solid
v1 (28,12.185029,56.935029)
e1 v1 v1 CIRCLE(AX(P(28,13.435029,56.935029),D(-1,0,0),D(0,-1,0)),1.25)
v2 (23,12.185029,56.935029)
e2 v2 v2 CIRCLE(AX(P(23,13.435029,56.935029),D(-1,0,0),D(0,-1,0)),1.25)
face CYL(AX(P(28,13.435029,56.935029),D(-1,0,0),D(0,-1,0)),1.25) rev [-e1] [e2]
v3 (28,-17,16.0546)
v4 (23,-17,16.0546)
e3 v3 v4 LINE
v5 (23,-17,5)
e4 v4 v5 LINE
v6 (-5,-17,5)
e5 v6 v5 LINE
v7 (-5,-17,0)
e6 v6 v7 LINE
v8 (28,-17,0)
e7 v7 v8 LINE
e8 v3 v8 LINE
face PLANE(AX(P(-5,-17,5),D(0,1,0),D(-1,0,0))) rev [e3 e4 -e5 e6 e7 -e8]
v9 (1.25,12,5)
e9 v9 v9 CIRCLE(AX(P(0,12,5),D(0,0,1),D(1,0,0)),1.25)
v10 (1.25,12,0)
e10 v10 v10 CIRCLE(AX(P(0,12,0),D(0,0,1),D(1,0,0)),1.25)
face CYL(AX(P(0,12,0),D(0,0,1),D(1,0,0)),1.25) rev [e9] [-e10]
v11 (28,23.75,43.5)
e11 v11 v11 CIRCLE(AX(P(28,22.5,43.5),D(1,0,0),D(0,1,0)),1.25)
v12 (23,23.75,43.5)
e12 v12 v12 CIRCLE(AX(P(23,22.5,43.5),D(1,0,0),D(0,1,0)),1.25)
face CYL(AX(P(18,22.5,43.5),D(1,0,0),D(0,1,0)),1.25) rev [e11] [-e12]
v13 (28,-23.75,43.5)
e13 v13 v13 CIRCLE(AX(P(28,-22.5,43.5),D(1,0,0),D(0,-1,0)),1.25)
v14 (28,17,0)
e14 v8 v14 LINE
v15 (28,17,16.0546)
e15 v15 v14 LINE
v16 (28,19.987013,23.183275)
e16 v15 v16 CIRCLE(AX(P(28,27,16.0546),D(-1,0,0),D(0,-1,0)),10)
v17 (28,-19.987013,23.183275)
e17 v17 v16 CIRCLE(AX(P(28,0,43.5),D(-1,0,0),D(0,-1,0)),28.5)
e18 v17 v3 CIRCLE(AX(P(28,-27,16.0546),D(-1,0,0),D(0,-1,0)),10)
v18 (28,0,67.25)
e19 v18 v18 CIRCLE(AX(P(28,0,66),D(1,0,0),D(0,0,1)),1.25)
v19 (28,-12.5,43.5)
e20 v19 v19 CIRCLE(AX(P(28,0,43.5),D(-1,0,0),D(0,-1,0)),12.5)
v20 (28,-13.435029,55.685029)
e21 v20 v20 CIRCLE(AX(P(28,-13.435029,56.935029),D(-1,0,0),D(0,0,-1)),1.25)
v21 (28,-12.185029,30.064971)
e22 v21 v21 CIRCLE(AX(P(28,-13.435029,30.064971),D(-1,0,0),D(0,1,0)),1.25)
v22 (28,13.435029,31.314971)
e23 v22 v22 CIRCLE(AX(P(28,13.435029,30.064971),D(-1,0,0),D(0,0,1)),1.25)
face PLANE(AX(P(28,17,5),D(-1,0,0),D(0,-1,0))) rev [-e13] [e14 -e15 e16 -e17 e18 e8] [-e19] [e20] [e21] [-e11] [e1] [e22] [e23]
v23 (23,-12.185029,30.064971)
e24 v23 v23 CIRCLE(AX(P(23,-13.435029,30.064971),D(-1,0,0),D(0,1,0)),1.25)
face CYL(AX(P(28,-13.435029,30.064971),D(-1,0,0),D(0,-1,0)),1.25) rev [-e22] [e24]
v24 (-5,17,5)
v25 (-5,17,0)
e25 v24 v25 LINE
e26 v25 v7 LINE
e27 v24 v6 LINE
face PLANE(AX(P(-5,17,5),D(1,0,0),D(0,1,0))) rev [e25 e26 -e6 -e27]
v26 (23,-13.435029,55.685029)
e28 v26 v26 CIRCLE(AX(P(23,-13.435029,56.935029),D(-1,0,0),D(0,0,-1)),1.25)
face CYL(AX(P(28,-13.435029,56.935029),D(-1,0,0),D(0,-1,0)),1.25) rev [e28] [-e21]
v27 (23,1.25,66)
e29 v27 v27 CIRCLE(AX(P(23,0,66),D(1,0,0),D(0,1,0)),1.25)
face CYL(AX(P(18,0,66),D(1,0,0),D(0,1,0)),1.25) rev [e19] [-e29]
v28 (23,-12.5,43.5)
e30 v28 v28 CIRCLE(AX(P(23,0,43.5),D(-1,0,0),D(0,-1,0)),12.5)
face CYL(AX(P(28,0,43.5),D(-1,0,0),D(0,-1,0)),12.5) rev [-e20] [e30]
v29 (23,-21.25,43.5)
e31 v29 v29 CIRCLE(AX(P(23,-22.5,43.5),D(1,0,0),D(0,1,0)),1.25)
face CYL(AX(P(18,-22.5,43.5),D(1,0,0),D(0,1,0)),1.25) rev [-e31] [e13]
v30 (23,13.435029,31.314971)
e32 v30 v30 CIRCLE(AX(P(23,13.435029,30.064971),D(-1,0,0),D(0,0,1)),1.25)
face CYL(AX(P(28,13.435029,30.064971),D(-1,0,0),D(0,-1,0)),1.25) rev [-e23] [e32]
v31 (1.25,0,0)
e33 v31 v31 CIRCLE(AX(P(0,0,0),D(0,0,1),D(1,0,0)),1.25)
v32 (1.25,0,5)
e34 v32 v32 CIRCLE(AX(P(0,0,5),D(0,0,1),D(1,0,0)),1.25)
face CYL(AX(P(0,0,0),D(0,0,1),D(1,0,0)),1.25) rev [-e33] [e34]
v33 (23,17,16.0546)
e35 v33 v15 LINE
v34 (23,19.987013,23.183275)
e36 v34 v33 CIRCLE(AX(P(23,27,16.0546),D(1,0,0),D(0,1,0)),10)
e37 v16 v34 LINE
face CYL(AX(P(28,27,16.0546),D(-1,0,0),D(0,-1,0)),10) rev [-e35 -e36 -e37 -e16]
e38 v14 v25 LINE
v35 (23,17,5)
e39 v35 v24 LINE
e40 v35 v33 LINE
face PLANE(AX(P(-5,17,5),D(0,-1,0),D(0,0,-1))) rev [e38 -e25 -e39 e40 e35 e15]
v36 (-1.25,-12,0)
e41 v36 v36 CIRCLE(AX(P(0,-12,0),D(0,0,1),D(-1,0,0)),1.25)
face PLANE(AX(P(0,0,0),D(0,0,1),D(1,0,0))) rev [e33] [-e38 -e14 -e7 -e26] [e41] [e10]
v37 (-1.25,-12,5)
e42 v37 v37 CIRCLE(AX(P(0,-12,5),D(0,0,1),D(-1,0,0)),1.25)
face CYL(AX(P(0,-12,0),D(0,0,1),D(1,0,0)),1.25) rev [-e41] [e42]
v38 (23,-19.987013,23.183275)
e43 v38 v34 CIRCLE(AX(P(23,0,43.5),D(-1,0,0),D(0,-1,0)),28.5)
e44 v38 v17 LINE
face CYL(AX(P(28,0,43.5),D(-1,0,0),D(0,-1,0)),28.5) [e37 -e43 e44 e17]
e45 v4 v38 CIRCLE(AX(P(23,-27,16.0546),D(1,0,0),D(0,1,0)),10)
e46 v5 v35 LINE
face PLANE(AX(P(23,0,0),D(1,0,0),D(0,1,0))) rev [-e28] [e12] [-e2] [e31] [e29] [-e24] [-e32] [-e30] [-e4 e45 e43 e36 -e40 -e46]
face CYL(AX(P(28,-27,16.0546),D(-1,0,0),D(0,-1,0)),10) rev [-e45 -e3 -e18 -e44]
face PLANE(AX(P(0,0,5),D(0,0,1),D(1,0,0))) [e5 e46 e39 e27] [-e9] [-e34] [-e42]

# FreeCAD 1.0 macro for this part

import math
import FreeCAD as App
import Part
import Sketcher

V = App.Vector
Q = App.Units.Quantity


def edges_at(feature, points):
    """Names of the edges that pass closest to the given points."""
    edges = feature.Shape.Edges
    near = lambda p: min(range(len(edges)), key=lambda i: edges[i].distToShape(Part.Vertex(*p))[0])
    return sorted({f"Edge{near(p) + 1}" for p in points})


def add_polygon(sketch, points):
    """Adds a closed chain of lines whose ends are joined by coincident constraints."""
    first, n = sketch.GeometryCount, len(points)
    for a, b in zip(points, points[1:] + points[:1]):
        sketch.addGeometry(Part.LineSegment(App.Vector(*a, 0), App.Vector(*b, 0)), False)
    for i in range(n):
        sketch.addConstraint(Sketcher.Constraint("Coincident", first + i, 2, first + (i + 1) % n, 1))

doc = App.newDocument("Part")
body = doc.addObject("PartDesign::Body", "Body")

sketch1 = body.newObject("Sketcher::SketchObject", "Sketch")
sketch1.AttachmentSupport = (doc.getObject("XY_Plane"), [""])
sketch1.MapMode = "FlatFace"
add_polygon(sketch1, [(28, 17), (-5, 17), (-5, -17), (28, -17)])
sketch1.addConstraint(Sketcher.Constraint("Horizontal", 0))
sketch1.addConstraint(Sketcher.Constraint("Vertical", 1))
sketch1.addConstraint(Sketcher.Constraint("Horizontal", 2))
sketch1.addConstraint(Sketcher.Constraint("Vertical", 3))
sketch1.addConstraint(Sketcher.Constraint("DistanceX", 0, 2, 0, 1, Q("33 mm")))
sketch1.addConstraint(Sketcher.Constraint("DistanceY", 1, 2, 1, 1, Q("34 mm")))
sketch1.addConstraint(Sketcher.Constraint("DistanceX", 0, 2, -1, 1, Q("5 mm")))
sketch1.addConstraint(Sketcher.Constraint("DistanceY", -1, 1, 0, 2, Q("17 mm")))
pad1 = body.newObject("PartDesign::Pad", "Pad")
pad1.Profile = sketch1
pad1.Length = 5

sketch2 = body.newObject("Sketcher::SketchObject", "Sketch001")
sketch2.AttachmentSupport = (doc.getObject("YZ_Plane"), [""])
sketch2.MapMode = "FlatFace"
sketch2.AttachmentOffset = App.Placement(V(0, 0, 28), App.Rotation())
add_polygon(sketch2, [(17, 72), (-17, 72), (-17, 5), (17, 5)])
sketch2.addConstraint(Sketcher.Constraint("Horizontal", 0))
sketch2.addConstraint(Sketcher.Constraint("Vertical", 1))
sketch2.addConstraint(Sketcher.Constraint("Horizontal", 2))
sketch2.addConstraint(Sketcher.Constraint("Vertical", 3))
sketch2.addConstraint(Sketcher.Constraint("DistanceX", 0, 2, 0, 1, Q("34 mm")))
sketch2.addConstraint(Sketcher.Constraint("DistanceY", 1, 2, 1, 1, Q("67 mm")))
sketch2.addConstraint(Sketcher.Constraint("DistanceX", 0, 2, -1, 1, Q("17 mm")))
sketch2.addConstraint(Sketcher.Constraint("DistanceY", -1, 1, 0, 2, Q("72 mm")))
pad2 = body.newObject("PartDesign::Pad", "Pad001")
pad2.Profile = sketch2
pad2.Length = 5
pad2.Reversed = True

sketch3 = body.newObject("Sketcher::SketchObject", "Sketch002")
sketch3.AttachmentSupport = (doc.getObject("YZ_Plane"), [""])
sketch3.MapMode = "FlatFace"
sketch3.AttachmentOffset = App.Placement(V(0, 0, 23), App.Rotation())
add_polygon(sketch3, [(28, 15), (-28, 15), (-28, 72), (28, 72)])
sketch3.addConstraint(Sketcher.Constraint("Horizontal", 0))
sketch3.addConstraint(Sketcher.Constraint("Vertical", 1))
sketch3.addConstraint(Sketcher.Constraint("Horizontal", 2))
sketch3.addConstraint(Sketcher.Constraint("Vertical", 3))
sketch3.addConstraint(Sketcher.Constraint("Equal", 2, 1))
sketch3.addConstraint(Sketcher.Constraint("DistanceX", 0, 2, 0, 1, Q("57 mm")))
sketch3.addConstraint(Sketcher.Constraint("DistanceY", -1, 1, 0, 2, Q("15 mm")))
sketch3.addConstraint(Sketcher.Constraint("DistanceX", 0, 2, -1, 1, Q("28.5 mm")))
pad3 = body.newObject("PartDesign::Pad", "Pad002")
pad3.Profile = sketch3
pad3.Length = 5

sketch4 = body.newObject("Sketcher::SketchObject", "Sketch003")
sketch4.AttachmentSupport = (doc.getObject("YZ_Plane"), [""])
sketch4.MapMode = "FlatFace"
sketch4.AttachmentOffset = App.Placement(V(0, 0, 23), App.Rotation())
sketch4.addGeometry(Part.LineSegment(V(28, 15, 0), V(17, 15, 0)), False)
sketch4.addGeometry(Part.LineSegment(V(17, 15, 0), V(17, 21, 0)), False)
sketch4.addGeometry(Part.ArcOfCircle(Part.Circle(V(0, 44, 0), V(0, 0, 1), 29), math.radians(-53), math.radians(0)), False)
sketch4.addGeometry(Part.LineSegment(V(28, 44, 0), V(28, 15, 0)), False)
sketch4.addGeometry(Part.ArcOfCircle(Part.Circle(V(0, 44, 0), V(0, 0, 1), 29), math.radians(180), math.radians(233)), False)
sketch4.addGeometry(Part.LineSegment(V(-17, 21, 0), V(-17, 15, 0)), False)
sketch4.addGeometry(Part.LineSegment(V(-17, 15, 0), V(-28, 15, 0)), False)
sketch4.addGeometry(Part.LineSegment(V(-28, 15, 0), V(-28, 44, 0)), False)
sketch4.addGeometry(Part.ArcOfCircle(Part.Circle(V(0, 44, 0), V(0, 0, 1), 28), math.radians(90), math.radians(180)), False)
sketch4.addGeometry(Part.LineSegment(V(-28, 44, 0), V(-28, 72, 0)), False)
sketch4.addGeometry(Part.LineSegment(V(-28, 72, 0), V(0, 72, 0)), False)
sketch4.addGeometry(Part.LineSegment(V(28, 72, 0), V(28, 44, 0)), False)
sketch4.addGeometry(Part.ArcOfCircle(Part.Circle(V(0, 44, 0), V(0, 0, 1), 28), math.radians(0), math.radians(90)), False)
sketch4.addGeometry(Part.LineSegment(V(0, 72, 0), V(28, 72, 0)), False)
sketch4.addConstraint(Sketcher.Constraint("Coincident", 0, 2, 1, 1))
sketch4.addConstraint(Sketcher.Constraint("Coincident", 1, 2, 2, 1))
sketch4.addConstraint(Sketcher.Constraint("Tangent", 2, 2, 3, 1))
sketch4.addConstraint(Sketcher.Constraint("Coincident", 3, 2, 0, 1))
sketch4.addConstraint(Sketcher.Constraint("Coincident", 4, 2, 5, 1))
sketch4.addConstraint(Sketcher.Constraint("Coincident", 5, 2, 6, 1))
sketch4.addConstraint(Sketcher.Constraint("Coincident", 6, 2, 7, 1))
sketch4.addConstraint(Sketcher.Constraint("Tangent", 7, 2, 4, 1))
sketch4.addConstraint(Sketcher.Constraint("Tangent", 8, 2, 9, 1))
sketch4.addConstraint(Sketcher.Constraint("Coincident", 9, 2, 10, 1))
sketch4.addConstraint(Sketcher.Constraint("Tangent", 10, 2, 8, 1))
sketch4.addConstraint(Sketcher.Constraint("Tangent", 11, 2, 12, 1))
sketch4.addConstraint(Sketcher.Constraint("Tangent", 12, 2, 13, 1))
sketch4.addConstraint(Sketcher.Constraint("Coincident", 13, 2, 11, 1))
sketch4.addConstraint(Sketcher.Constraint("Horizontal", 0))
sketch4.addConstraint(Sketcher.Constraint("Vertical", 1))
sketch4.addConstraint(Sketcher.Constraint("Vertical", 3))
sketch4.addConstraint(Sketcher.Constraint("Vertical", 5))
sketch4.addConstraint(Sketcher.Constraint("Horizontal", 6))
sketch4.addConstraint(Sketcher.Constraint("Vertical", 7))
sketch4.addConstraint(Sketcher.Constraint("Vertical", 9))
sketch4.addConstraint(Sketcher.Constraint("Horizontal", 10))
sketch4.addConstraint(Sketcher.Constraint("Vertical", 11))
sketch4.addConstraint(Sketcher.Constraint("Horizontal", 13))
sketch4.addConstraint(Sketcher.Constraint("Coincident", 4, 3, 2, 3))
sketch4.addConstraint(Sketcher.Constraint("Coincident", 8, 3, 2, 3))
sketch4.addConstraint(Sketcher.Constraint("Coincident", 12, 3, 2, 3))
sketch4.addConstraint(Sketcher.Constraint("Equal", 2, 4))
sketch4.addConstraint(Sketcher.Constraint("Equal", 4, 8))
sketch4.addConstraint(Sketcher.Constraint("Equal", 8, 12))
sketch4.addConstraint(Sketcher.Constraint("Symmetric", 1, 2, 4, 2, -2))
sketch4.addConstraint(Sketcher.Constraint("Horizontal", 3, 2, 5, 2))
sketch4.addConstraint(Sketcher.Constraint("Equal", 13, 3))
sketch4.addConstraint(Sketcher.Constraint("Radius", 2, Q("28.5 mm")))
sketch4.addConstraint(Sketcher.Constraint("DistanceX", 0, 2, 0, 1, Q("11.5 mm")))
sketch4.addConstraint(Sketcher.Constraint("DistanceY", -1, 1, 0, 2, Q("15 mm")))
pocket1 = body.newObject("PartDesign::Pocket", "Pocket")
pocket1.Profile = sketch4
pocket1.Length = 5
pocket1.Reversed = True
doc.recompute()

fillet = body.newObject("PartDesign::Fillet", "Fillet")
fillet.Base = (pocket1, edges_at(pocket1, [(25.5, 17, 20.625)]))
fillet.Radius = 10
doc.recompute()

fillet2 = body.newObject("PartDesign::Fillet", "Fillet001")
fillet2.Base = (fillet, edges_at(fillet, [(25.5, -17, 20.625)]))
fillet2.Radius = 10

sketch5 = body.newObject("Sketcher::SketchObject", "Sketch004")
sketch5.AttachmentSupport = (doc.getObject("YZ_Plane"), [""])
sketch5.MapMode = "FlatFace"
sketch5.AttachmentOffset = App.Placement(V(0, 0, 23), App.Rotation())
sketch5.addGeometry(Part.Circle(V(13.4, 56.9, 0), V(0, 0, 1), 1.2), False)
sketch5.addGeometry(Part.Circle(V(0, 43.5, 0), V(0, 0, 1), 12.5), False)
sketch5.addConstraint(Sketcher.Constraint("PointOnObject", 1, 3, -2))
sketch5.addConstraint(Sketcher.Constraint("Diameter", 1, Q("25 mm")))
sketch5.addConstraint(Sketcher.Constraint("Diameter", 0, Q("2.5 mm")))
sketch5.addConstraint(Sketcher.Constraint("DistanceY", -1, 1, 1, 3, Q("43.5 mm")))
sketch5.addConstraint(Sketcher.Constraint("DistanceX", -1, 1, 0, 3, Q("13.435029 mm")))
sketch5.addConstraint(Sketcher.Constraint("DistanceY", -1, 1, 0, 3, Q("56.935029 mm")))
pocket2 = body.newObject("PartDesign::Pocket", "Pocket001")
pocket2.Profile = sketch5
pocket2.Length = 5
pocket2.Reversed = True
doc.recompute()

datumline = body.newObject("PartDesign::Line", "DatumLine")
datumline.Placement = App.Placement(V(0, 0, 43.5), App.Rotation(V(0, 0, 1), V(1, 0, 0)))
polarpattern = body.newObject("PartDesign::PolarPattern", "PolarPattern")
polarpattern.Originals = [pocket2]
polarpattern.Axis = (datumline, [""])
polarpattern.Angle = 360
polarpattern.Occurrences = 4
body.Tip = polarpattern

sketch6 = body.newObject("Sketcher::SketchObject", "Sketch005")
sketch6.AttachmentSupport = (doc.getObject("XY_Plane"), [""])
sketch6.MapMode = "FlatFace"
sketch6.AttachmentOffset = App.Placement(V(0, 0, 5), App.Rotation())
sketch6.addGeometry(Part.Circle(V(0, 0, 0), V(0, 0, 1), 1.2), False)
sketch6.addGeometry(Part.Circle(V(0, 12, 0), V(0, 0, 1), 1.2), False)
sketch6.addGeometry(Part.Circle(V(0, -12, 0), V(0, 0, 1), 1.2), False)
sketch6.addConstraint(Sketcher.Constraint("Coincident", 0, 3, -1, 1))
sketch6.addConstraint(Sketcher.Constraint("Equal", 0, 1))
sketch6.addConstraint(Sketcher.Constraint("Equal", 1, 2))
sketch6.addConstraint(Sketcher.Constraint("Symmetric", 1, 3, 2, 3, -1, 1))
sketch6.addConstraint(Sketcher.Constraint("PointOnObject", 1, 3, -2))
sketch6.addConstraint(Sketcher.Constraint("Diameter", 0, Q("2.5 mm")))
sketch6.addConstraint(Sketcher.Constraint("DistanceY", -1, 1, 1, 3, Q("12 mm")))
pocket3 = body.newObject("PartDesign::Pocket", "Pocket002")
pocket3.Profile = sketch6
pocket3.Length = 5

sketch7 = body.newObject("Sketcher::SketchObject", "Sketch006")
sketch7.AttachmentSupport = (doc.getObject("YZ_Plane"), [""])
sketch7.MapMode = "FlatFace"
sketch7.AttachmentOffset = App.Placement(V(0, 0, 28), App.Rotation())
sketch7.addGeometry(Part.Circle(V(22.5, 43.5, 0), V(0, 0, 1), 1.2), False)
sketch7.addConstraint(Sketcher.Constraint("Diameter", 0, Q("2.5 mm")))
sketch7.addConstraint(Sketcher.Constraint("DistanceX", -1, 1, 0, 3, Q("22.5 mm")))
sketch7.addConstraint(Sketcher.Constraint("DistanceY", -1, 1, 0, 3, Q("43.5 mm")))
pocket4 = body.newObject("PartDesign::Pocket", "Pocket003")
pocket4.Profile = sketch7
pocket4.Length = 10
doc.recompute()

datumline2 = body.newObject("PartDesign::Line", "DatumLine001")
datumline2.Placement = App.Placement(V(0, 0, 43.5), App.Rotation(V(0, 0, 1), V(1, 0, 0)))
polarpattern2 = body.newObject("PartDesign::PolarPattern", "PolarPattern001")
polarpattern2.Originals = [pocket4]
polarpattern2.Axis = (datumline2, [""])
polarpattern2.Angle = 180
polarpattern2.Occurrences = 3
body.Tip = polarpattern2

doc.recompute()
